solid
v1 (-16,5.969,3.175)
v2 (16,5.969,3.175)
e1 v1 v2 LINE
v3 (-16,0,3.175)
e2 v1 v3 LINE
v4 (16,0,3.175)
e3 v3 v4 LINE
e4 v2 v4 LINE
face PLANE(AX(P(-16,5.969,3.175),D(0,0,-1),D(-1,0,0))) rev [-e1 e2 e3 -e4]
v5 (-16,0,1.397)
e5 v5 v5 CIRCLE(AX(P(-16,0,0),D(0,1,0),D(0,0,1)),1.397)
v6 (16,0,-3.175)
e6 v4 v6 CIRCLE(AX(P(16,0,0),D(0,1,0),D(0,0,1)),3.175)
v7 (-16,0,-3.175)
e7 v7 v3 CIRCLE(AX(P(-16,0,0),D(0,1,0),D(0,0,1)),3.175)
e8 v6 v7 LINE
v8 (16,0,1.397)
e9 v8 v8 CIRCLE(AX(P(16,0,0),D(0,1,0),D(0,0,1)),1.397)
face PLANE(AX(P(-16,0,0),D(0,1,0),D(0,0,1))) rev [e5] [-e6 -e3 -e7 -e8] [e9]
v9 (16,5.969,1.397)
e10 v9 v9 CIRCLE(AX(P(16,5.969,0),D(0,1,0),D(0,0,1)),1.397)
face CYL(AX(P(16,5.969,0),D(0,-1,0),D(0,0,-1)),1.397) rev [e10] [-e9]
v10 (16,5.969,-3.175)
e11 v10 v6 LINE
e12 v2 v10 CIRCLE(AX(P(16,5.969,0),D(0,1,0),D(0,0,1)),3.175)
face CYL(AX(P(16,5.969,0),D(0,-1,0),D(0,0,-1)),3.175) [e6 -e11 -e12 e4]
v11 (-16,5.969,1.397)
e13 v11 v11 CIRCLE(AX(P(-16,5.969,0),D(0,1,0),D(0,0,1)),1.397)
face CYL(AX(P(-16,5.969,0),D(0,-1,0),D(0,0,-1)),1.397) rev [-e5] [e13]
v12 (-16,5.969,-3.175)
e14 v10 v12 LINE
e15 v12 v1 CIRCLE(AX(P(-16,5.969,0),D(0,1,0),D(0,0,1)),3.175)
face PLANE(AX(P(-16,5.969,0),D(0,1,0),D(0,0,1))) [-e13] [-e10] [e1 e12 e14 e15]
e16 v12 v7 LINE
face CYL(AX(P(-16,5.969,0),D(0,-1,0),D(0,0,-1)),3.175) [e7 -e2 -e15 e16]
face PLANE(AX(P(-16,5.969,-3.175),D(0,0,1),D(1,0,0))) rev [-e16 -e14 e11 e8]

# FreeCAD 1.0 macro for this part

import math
import FreeCAD as App
import Part
import Sketcher
from FreeCAD import Vector
Q = App.Units.Quantity

doc = App.newDocument("Part")
params = doc.addObject("Spreadsheet::Sheet", "Params")
for row, (alias, value) in enumerate([
    ("sketch1_diameter", "0.11 in"),
    ("sketch1_radius", "0.125 in"),
    ("pad1_length", "0.235 in"),
], start=1):
    params.set(f"A{row}", alias)
    params.set(f"B{row}", "=" + value)
    params.setAlias(f"B{row}", alias)

body = doc.addObject("PartDesign::Body", "Body")

# Sketch on XZ plane
sketch1 = body.newObject("Sketcher::SketchObject", "Sketch")
sketch1.AttachmentSupport = (doc.getObject("XZ_Plane"), [""])
sketch1.MapMode = "FlatFace"
sketch1.addGeometry([
    Part.LineSegment(Vector(16, -3.2, 0), Vector(-16, -3.2, 0)),  # 0
    Part.ArcOfCircle(Part.Circle(Vector(-16, 0, 0), Vector(0, 0, 1), 3.2), math.radians(90), math.radians(270)),  # 1
    Part.LineSegment(Vector(-16, 3.2, 0), Vector(16, 3.2, 0)),  # 2
    Part.ArcOfCircle(Part.Circle(Vector(16, 0, 0), Vector(0, 0, 1), 3.2), math.radians(-90), math.radians(90)),  # 3
    Part.Circle(Vector(16, 0, 0), Vector(0, 0, 1), 1.4),  # 4
    Part.Circle(Vector(-16, 0, 0), Vector(0, 0, 1), 1.4),  # 5
], False)
sketch1.addConstraint([
    Sketcher.Constraint("Tangent", 0, 2, 1, 2),
    Sketcher.Constraint("Tangent", 1, 1, 2, 1),
    Sketcher.Constraint("Tangent", 2, 2, 3, 2),
    Sketcher.Constraint("Tangent", 3, 1, 0, 1),
    Sketcher.Constraint("Horizontal", 0),
    Sketcher.Constraint("Horizontal", 2),
    Sketcher.Constraint("Coincident", 4, 3, 3, 3),
    Sketcher.Constraint("Coincident", 5, 3, 1, 3),
    Sketcher.Constraint("Equal", 4, 5),
    Sketcher.Constraint("Symmetric", 1, 3, 3, 3, -1, 1),
    Sketcher.Constraint("Diameter", 4, Q("0.11 in")),
    Sketcher.Constraint("Radius", 1, Q("0.125 in")),
    Sketcher.Constraint("DistanceX", 0, 2, 0, 1, 32.0),
])
sketch1.setExpression("Constraints[10]", "Params.sketch1_diameter")
sketch1.setExpression("Constraints[11]", "Params.sketch1_radius")
pad1 = body.newObject("PartDesign::Pad", "Pad")
pad1.Profile = sketch1
pad1.setExpression("Length", "Params.pad1_length")
pad1.Reversed = True

doc.recompute()
